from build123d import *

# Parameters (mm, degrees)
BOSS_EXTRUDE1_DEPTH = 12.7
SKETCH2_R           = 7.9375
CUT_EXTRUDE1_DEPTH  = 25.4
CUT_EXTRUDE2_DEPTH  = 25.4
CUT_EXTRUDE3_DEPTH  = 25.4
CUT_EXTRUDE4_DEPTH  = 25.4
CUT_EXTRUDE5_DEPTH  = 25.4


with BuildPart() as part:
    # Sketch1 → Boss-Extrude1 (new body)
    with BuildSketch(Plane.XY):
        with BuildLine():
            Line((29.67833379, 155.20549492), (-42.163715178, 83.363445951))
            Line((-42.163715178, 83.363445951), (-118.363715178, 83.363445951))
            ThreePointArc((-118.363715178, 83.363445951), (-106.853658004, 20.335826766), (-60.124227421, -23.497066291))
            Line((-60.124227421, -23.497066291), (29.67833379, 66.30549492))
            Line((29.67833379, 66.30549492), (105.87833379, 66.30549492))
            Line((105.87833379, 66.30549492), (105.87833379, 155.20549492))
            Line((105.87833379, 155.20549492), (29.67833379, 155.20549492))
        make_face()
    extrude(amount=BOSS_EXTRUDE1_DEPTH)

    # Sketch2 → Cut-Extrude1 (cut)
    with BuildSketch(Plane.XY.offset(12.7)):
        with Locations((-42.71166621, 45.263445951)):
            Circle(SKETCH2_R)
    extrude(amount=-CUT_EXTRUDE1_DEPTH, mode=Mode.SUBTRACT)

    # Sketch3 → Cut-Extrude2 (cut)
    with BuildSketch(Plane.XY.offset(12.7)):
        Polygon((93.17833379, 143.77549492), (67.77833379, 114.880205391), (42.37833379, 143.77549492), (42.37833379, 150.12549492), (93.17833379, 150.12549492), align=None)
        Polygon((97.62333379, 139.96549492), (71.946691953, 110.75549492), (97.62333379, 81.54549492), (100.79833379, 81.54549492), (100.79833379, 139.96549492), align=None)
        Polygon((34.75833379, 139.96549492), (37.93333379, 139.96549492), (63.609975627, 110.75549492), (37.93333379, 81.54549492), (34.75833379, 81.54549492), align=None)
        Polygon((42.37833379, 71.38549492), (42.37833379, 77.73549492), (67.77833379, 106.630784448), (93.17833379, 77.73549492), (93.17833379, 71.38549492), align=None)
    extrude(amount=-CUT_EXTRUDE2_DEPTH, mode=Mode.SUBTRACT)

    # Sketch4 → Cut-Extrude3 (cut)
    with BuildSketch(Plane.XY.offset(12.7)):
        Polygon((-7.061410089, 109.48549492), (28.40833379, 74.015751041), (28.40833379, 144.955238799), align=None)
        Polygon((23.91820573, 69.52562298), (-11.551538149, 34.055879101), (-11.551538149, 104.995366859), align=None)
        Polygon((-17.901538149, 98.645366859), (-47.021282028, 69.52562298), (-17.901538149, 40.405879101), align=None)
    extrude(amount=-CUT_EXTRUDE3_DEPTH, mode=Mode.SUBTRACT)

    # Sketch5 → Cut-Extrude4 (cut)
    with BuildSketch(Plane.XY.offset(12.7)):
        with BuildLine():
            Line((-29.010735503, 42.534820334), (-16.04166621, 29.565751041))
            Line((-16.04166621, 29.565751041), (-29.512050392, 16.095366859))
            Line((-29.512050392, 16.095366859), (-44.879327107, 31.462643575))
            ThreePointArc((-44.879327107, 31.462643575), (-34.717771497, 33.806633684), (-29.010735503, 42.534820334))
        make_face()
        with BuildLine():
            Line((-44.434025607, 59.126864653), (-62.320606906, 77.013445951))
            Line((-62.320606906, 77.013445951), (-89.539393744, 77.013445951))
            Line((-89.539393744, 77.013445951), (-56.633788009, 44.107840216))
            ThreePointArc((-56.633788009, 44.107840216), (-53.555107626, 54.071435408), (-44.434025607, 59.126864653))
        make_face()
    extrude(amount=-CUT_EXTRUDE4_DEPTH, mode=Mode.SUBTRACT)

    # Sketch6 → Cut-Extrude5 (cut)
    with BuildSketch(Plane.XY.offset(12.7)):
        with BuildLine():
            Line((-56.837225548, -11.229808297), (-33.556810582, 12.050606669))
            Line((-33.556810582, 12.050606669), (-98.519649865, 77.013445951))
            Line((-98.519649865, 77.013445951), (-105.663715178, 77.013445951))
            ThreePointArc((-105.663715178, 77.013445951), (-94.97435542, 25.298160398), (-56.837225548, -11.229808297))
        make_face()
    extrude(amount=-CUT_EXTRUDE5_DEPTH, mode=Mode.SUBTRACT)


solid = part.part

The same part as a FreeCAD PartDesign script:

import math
import FreeCAD as App
import Part
import Sketcher
from FreeCAD import Vector
Q = App.Units.Quantity

doc = App.newDocument("Part")
body = doc.addObject("PartDesign::Body", "Body")

# Sketch on XY plane
sketch1 = body.newObject("Sketcher::SketchObject", "Sketch")
sketch1.AttachmentSupport = (doc.getObject("XY_Plane"), [""])
sketch1.MapMode = "FlatFace"
sketch1.addGeometry([
    Part.LineSegment(Vector(30, 155, 0), Vector(-42, 83, 0)),  # 0
    Part.LineSegment(Vector(-42, 83, 0), Vector(-118, 83, 0)),  # 1
    Part.ArcOfCircle(Part.Circle(Vector(-17, 69, 0), Vector(0, 0, 1), 102), math.radians(172), math.radians(245)),  # 2
    Part.LineSegment(Vector(-60, -23, 0), Vector(30, 66, 0)),  # 3
    Part.LineSegment(Vector(30, 66, 0), Vector(106, 66, 0)),  # 4
    Part.LineSegment(Vector(106, 66, 0), Vector(106, 155, 0)),  # 5
    Part.LineSegment(Vector(106, 155, 0), Vector(30, 155, 0)),  # 6
], False)
sketch1.addConstraint([
    Sketcher.Constraint("Coincident", 0, 2, 1, 1),
    Sketcher.Constraint("Coincident", 1, 2, 2, 1),
    Sketcher.Constraint("Coincident", 2, 2, 3, 1),
    Sketcher.Constraint("Coincident", 3, 2, 4, 1),
    Sketcher.Constraint("Coincident", 4, 2, 5, 1),
    Sketcher.Constraint("Coincident", 5, 2, 6, 1),
    Sketcher.Constraint("Coincident", 6, 2, 0, 1),
    Sketcher.Constraint("Horizontal", 1),
    Sketcher.Constraint("Horizontal", 4),
    Sketcher.Constraint("Vertical", 5),
    Sketcher.Constraint("Horizontal", 6),
    Sketcher.Constraint("Parallel", 0, 3),
    Sketcher.Constraint("Vertical", 3, 2, 6, 2),
    Sketcher.Constraint("Equal", 1, 4),
    Sketcher.Constraint("DistanceX", 1, 2, 1, 1, Q("3 in")),
    Sketcher.Constraint("Distance", 0, Q("4 in")),
    Sketcher.Constraint("Distance", 3, Q("5 in")),
    Sketcher.Constraint("DistanceY", 5, 1, 5, 2, Q("3.5 in")),
    Sketcher.Constraint("Angle", 0, Q("-135 deg")),
    Sketcher.Constraint("Radius", 2, Q("102.341669 mm")),
    Sketcher.Constraint("DistanceY", -1, 1, 2, 3, Q("69.311199 mm")),
    Sketcher.Constraint("DistanceX", 2, 3, -1, 1, Q("16.991374 mm")),
])
pad1 = body.newObject("PartDesign::Pad", "Pad")
pad1.Profile = sketch1
pad1.Length = Q("0.5 in")

# Sketch on XY plane
sketch2 = body.newObject("Sketcher::SketchObject", "Sketch001")
sketch2.AttachmentSupport = (doc.getObject("XY_Plane"), [""])
sketch2.MapMode = "FlatFace"
sketch2.AttachmentOffset = App.Placement(Vector(0, 0, 0.5 * 25.4), App.Rotation())
sketch2.addGeometry(Part.Circle(Vector(-43, 45, 0), Vector(0, 0, 1), 8), False)
sketch2.addConstraint([
    Sketcher.Constraint("Diameter", 0, Q("0.625 in")),
    Sketcher.Constraint("DistanceX", 0, 3, -1, 1, Q("42.711666 mm")),
    Sketcher.Constraint("DistanceY", -1, 1, 0, 3, Q("45.263446 mm")),
])
pocket1 = body.newObject("PartDesign::Pocket", "Pocket")
pocket1.Profile = sketch2
pocket1.Length = Q("1 in")

# Sketch on XY plane
sketch3 = body.newObject("Sketcher::SketchObject", "Sketch002")
sketch3.AttachmentSupport = (doc.getObject("XY_Plane"), [""])
sketch3.MapMode = "FlatFace"
sketch3.AttachmentOffset = App.Placement(Vector(0, 0, 0.5 * 25.4), App.Rotation())
sketch3.addGeometry([
    Part.LineSegment(Vector(67.8, 114.9, 0), Vector(93.2, 143.8, 0)),  # 0
    Part.LineSegment(Vector(93.2, 143.8, 0), Vector(93.2, 150.1, 0)),  # 1
    Part.LineSegment(Vector(93.2, 150.1, 0), Vector(42.4, 150.1, 0)),  # 2
    Part.LineSegment(Vector(42.4, 150.1, 0), Vector(42.4, 143.8, 0)),  # 3
    Part.LineSegment(Vector(42.4, 143.8, 0), Vector(67.8, 114.9, 0)),  # 4
    Part.LineSegment(Vector(97.6, 140, 0), Vector(71.9, 110.8, 0)),  # 5
    Part.LineSegment(Vector(71.9, 110.8, 0), Vector(97.6, 81.5, 0)),  # 6
    Part.LineSegment(Vector(97.6, 81.5, 0), Vector(100.8, 81.5, 0)),  # 7
    Part.LineSegment(Vector(100.8, 81.5, 0), Vector(100.8, 140, 0)),  # 8
    Part.LineSegment(Vector(100.8, 140, 0), Vector(97.6, 140, 0)),  # 9
    Part.LineSegment(Vector(37.9, 140, 0), Vector(34.8, 140, 0)),  # 10
    Part.LineSegment(Vector(34.8, 140, 0), Vector(34.8, 81.5, 0)),  # 11
    Part.LineSegment(Vector(34.8, 81.5, 0), Vector(37.9, 81.5, 0)),  # 12
    Part.LineSegment(Vector(37.9, 81.5, 0), Vector(63.6, 110.8, 0)),  # 13
    Part.LineSegment(Vector(63.6, 110.8, 0), Vector(37.9, 140, 0)),  # 14
    Part.LineSegment(Vector(42.4, 77.7, 0), Vector(42.4, 71.4, 0)),  # 15
    Part.LineSegment(Vector(42.4, 71.4, 0), Vector(93.2, 71.4, 0)),  # 16
    Part.LineSegment(Vector(93.2, 71.4, 0), Vector(93.2, 77.7, 0)),  # 17
    Part.LineSegment(Vector(93.2, 77.7, 0), Vector(67.8, 106.6, 0)),  # 18
    Part.LineSegment(Vector(67.8, 106.6, 0), Vector(42.4, 77.7, 0)),  # 19
], False)
sketch3.addConstraint([
    Sketcher.Constraint("Coincident", 0, 2, 1, 1),
    Sketcher.Constraint("Coincident", 1, 2, 2, 1),
    Sketcher.Constraint("Coincident", 2, 2, 3, 1),
    Sketcher.Constraint("Coincident", 3, 2, 4, 1),
    Sketcher.Constraint("Coincident", 4, 2, 0, 1),
    Sketcher.Constraint("Coincident", 5, 2, 6, 1),
    Sketcher.Constraint("Coincident", 6, 2, 7, 1),
    Sketcher.Constraint("Coincident", 7, 2, 8, 1),
    Sketcher.Constraint("Coincident", 8, 2, 9, 1),
    Sketcher.Constraint("Coincident", 9, 2, 5, 1),
    Sketcher.Constraint("Coincident", 10, 2, 11, 1),
    Sketcher.Constraint("Coincident", 11, 2, 12, 1),
    Sketcher.Constraint("Coincident", 12, 2, 13, 1),
    Sketcher.Constraint("Coincident", 13, 2, 14, 1),
    Sketcher.Constraint("Coincident", 14, 2, 10, 1),
    Sketcher.Constraint("Coincident", 15, 2, 16, 1),
    Sketcher.Constraint("Coincident", 16, 2, 17, 1),
    Sketcher.Constraint("Coincident", 17, 2, 18, 1),
    Sketcher.Constraint("Coincident", 18, 2, 19, 1),
    Sketcher.Constraint("Coincident", 19, 2, 15, 1),
    Sketcher.Constraint("Vertical", 1),
    Sketcher.Constraint("Horizontal", 2),
    Sketcher.Constraint("Vertical", 3),
    Sketcher.Constraint("Horizontal", 7),
    Sketcher.Constraint("Vertical", 8),
    Sketcher.Constraint("Horizontal", 9),
    Sketcher.Constraint("Horizontal", 10),
    Sketcher.Constraint("Vertical", 11),
    Sketcher.Constraint("Horizontal", 12),
    Sketcher.Constraint("Vertical", 15),
    Sketcher.Constraint("Horizontal", 16),
    Sketcher.Constraint("Vertical", 17),
    Sketcher.Constraint("Parallel", 0, 5),
    Sketcher.Constraint("Parallel", 4, 6),
    Sketcher.Constraint("Parallel", 5, 13),
    Sketcher.Constraint("Parallel", 6, 14),
    Sketcher.Constraint("Parallel", 14, 18),
    Sketcher.Constraint("Parallel", 13, 19),
    Sketcher.Constraint("Horizontal", 0, 2, 3, 2),
    Sketcher.Constraint("Horizontal", 9, 2, 10, 2),
    Sketcher.Constraint("Horizontal", 7, 2, 11, 2),
    Sketcher.Constraint("Horizontal", 5, 2, 13, 2),
    Sketcher.Constraint("Horizontal", 17, 2, 19, 2),
    Sketcher.Constraint("Vertical", 6, 2, 9, 2),
    Sketcher.Constraint("Vertical", 12, 2, 14, 2),
    Sketcher.Constraint("Vertical", 3, 2, 15, 2),
    Sketcher.Constraint("Vertical", 1, 2, 16, 2),
    Sketcher.Constraint("Equal", 9, 10),
    Sketcher.Constraint("Equal", 3, 15),
    Sketcher.Constraint("DistanceX", 2, 2, 2, 1, Q("2 in")),
    Sketcher.Constraint("DistanceY", 8, 1, 8, 2, Q("2.3 in")),
    Sketcher.Constraint("DistanceY", 1, 1, 1, 2, Q("0.25 in")),
    Sketcher.Constraint("DistanceY", 5, 2, 0, 2, Q("1.3 in")),
    Sketcher.Constraint("DistanceX", 4, 2, 7, 2, Q("1.3 in")),
    Sketcher.Constraint("DistanceX", 10, 2, 3, 2, Q("0.3 in")),
    Sketcher.Constraint("DistanceY", 15, 2, 12, 2, Q("0.4 in")),
    Sketcher.Constraint("DistanceX", 7, 1, 7, 2, Q("0.125 in")),
    Sketcher.Constraint("Distance", 0, Q("38.472039 mm")),
    Sketcher.Constraint("DistanceX", -1, 1, 5, 2, Q("71.946692 mm")),
    Sketcher.Constraint("DistanceY", -1, 1, 0, 2, Q("143.775495 mm")),
])
pocket2 = body.newObject("PartDesign::Pocket", "Pocket001")
pocket2.Profile = sketch3
pocket2.Length = Q("1 in")

# Sketch on XY plane
sketch4 = body.newObject("Sketcher::SketchObject", "Sketch003")
sketch4.AttachmentSupport = (doc.getObject("XY_Plane"), [""])
sketch4.MapMode = "FlatFace"
sketch4.AttachmentOffset = App.Placement(Vector(0, 0, 0.5 * 25.4), App.Rotation())
sketch4.addGeometry([
    Part.LineSegment(Vector(-7, 109, 0), Vector(28, 74, 0)),  # 0
    Part.LineSegment(Vector(28, 74, 0), Vector(28, 145, 0)),  # 1
    Part.LineSegment(Vector(28, 145, 0), Vector(-7, 109, 0)),  # 2
    Part.LineSegment(Vector(-12, 34, 0), Vector(24, 70, 0)),  # 3
    Part.LineSegment(Vector(24, 70, 0), Vector(-12, 105, 0)),  # 4
    Part.LineSegment(Vector(-12, 105, 0), Vector(-12, 34, 0)),  # 5
    Part.LineSegment(Vector(-18, 99, 0), Vector(-47, 70, 0)),  # 6
    Part.LineSegment(Vector(-47, 70, 0), Vector(-18, 40, 0)),  # 7
    Part.LineSegment(Vector(-18, 40, 0), Vector(-18, 99, 0)),  # 8
], False)
sketch4.addConstraint([
    Sketcher.Constraint("Coincident", 0, 2, 1, 1),
    Sketcher.Constraint("Coincident", 1, 2, 2, 1),
    Sketcher.Constraint("Coincident", 2, 2, 0, 1),
    Sketcher.Constraint("Coincident", 3, 2, 4, 1),
    Sketcher.Constraint("Coincident", 4, 2, 5, 1),
    Sketcher.Constraint("Coincident", 5, 2, 3, 1),
    Sketcher.Constraint("Coincident", 6, 2, 7, 1),
    Sketcher.Constraint("Coincident", 7, 2, 8, 1),
    Sketcher.Constraint("Coincident", 8, 2, 6, 1),
    Sketcher.Constraint("Vertical", 1),
    Sketcher.Constraint("Vertical", 5),
    Sketcher.Constraint("Vertical", 8),
    Sketcher.Constraint("Perpendicular", 0, 2),
    Sketcher.Constraint("Parallel", 2, 3),
    Sketcher.Constraint("Perpendicular", 3, 4),
    Sketcher.Constraint("Perpendicular", 4, 6),
    Sketcher.Constraint("Perpendicular", 6, 7),
    Sketcher.Constraint("Horizontal", 3, 2, 6, 2),
    Sketcher.Constraint("Equal", 1, 5),
    Sketcher.Constraint("Equal", 0, 2),
    Sketcher.Constraint("DistanceX", 7, 2, 5, 2, Q("0.25 in")),
    Sketcher.Constraint("DistanceY", 5, 2, 7, 2, Q("0.25 in")),
    Sketcher.Constraint("DistanceY", 1, 1, 1, 2, Q("70.939488 mm")),
    Sketcher.Constraint("DistanceY", -1, 1, 0, 2, Q("74.015751 mm")),
    Sketcher.Constraint("DistanceX", 2, 2, -1, 1, Q("7.06141 mm")),
    Sketcher.Constraint("DistanceX", 4, 2, -1, 1, Q("11.551538 mm")),
    Sketcher.Constraint("DistanceY", -1, 1, 5, 2, Q("34.055879 mm")),
])
pocket3 = body.newObject("PartDesign::Pocket", "Pocket002")
pocket3.Profile = sketch4
pocket3.Length = Q("1 in")

# Sketch on XY plane
sketch5 = body.newObject("Sketcher::SketchObject", "Sketch004")
sketch5.AttachmentSupport = (doc.getObject("XY_Plane"), [""])
sketch5.MapMode = "FlatFace"
sketch5.AttachmentOffset = App.Placement(Vector(0, 0, 0.5 * 25.4), App.Rotation())
sketch5.addGeometry([
    Part.LineSegment(Vector(-16, 30, 0), Vector(-29, 43, 0)),  # 0
    Part.ArcOfCircle(Part.Circle(Vector(-43, 45, 0), Vector(0, 0, 1), 14), math.radians(-99), math.radians(-11)),  # 1
    Part.LineSegment(Vector(-45, 31, 0), Vector(-30, 16, 0)),  # 2
    Part.LineSegment(Vector(-30, 16, 0), Vector(-16, 30, 0)),  # 3
    Part.LineSegment(Vector(-44, 59, 0), Vector(-62, 77, 0)),  # 4
    Part.LineSegment(Vector(-62, 77, 0), Vector(-90, 77, 0)),  # 5
    Part.LineSegment(Vector(-90, 77, 0), Vector(-57, 44, 0)),  # 6
    Part.ArcOfCircle(Part.Circle(Vector(-43, 45, 0), Vector(0, 0, 1), 14), math.radians(97), math.radians(185)),  # 7
], False)
sketch5.addConstraint([
    Sketcher.Constraint("Coincident", 0, 2, 1, 2),
    Sketcher.Constraint("Coincident", 1, 1, 2, 1),
    Sketcher.Constraint("Coincident", 2, 2, 3, 1),
    Sketcher.Constraint("Coincident", 3, 2, 0, 1),
    Sketcher.Constraint("Coincident", 4, 2, 5, 1),
    Sketcher.Constraint("Coincident", 5, 2, 6, 1),
    Sketcher.Constraint("Coincident", 6, 2, 7, 2),
    Sketcher.Constraint("Coincident", 7, 1, 4, 1),
    Sketcher.Constraint("Horizontal", 5),
    Sketcher.Constraint("Coincident", 7, 3, 1, 3),
    Sketcher.Constraint("Equal", 1, 7),
    Sketcher.Constraint("Parallel", 0, 2),
    Sketcher.Constraint("Perpendicular", 2, 3),
    Sketcher.Constraint("Perpendicular", 3, 4),
    Sketcher.Constraint("Parallel", 4, 6),
    Sketcher.Constraint("Radius", 1, Q("0.55 in")),
    Sketcher.Constraint("Angle", 0, Q("135 deg")),
    Sketcher.Constraint("Distance", 3, Q("0.75 in")),
    Sketcher.Constraint("DistanceX", 1, 3, 3, 2, Q("1.05 in")),
    Sketcher.Constraint("DistanceY", 7, 3, 4, 2, Q("1.25 in")),
    Sketcher.Constraint("DistanceY", 6, 2, 7, 1, Q("0.5913002 in")),
    Sketcher.Constraint("Distance", 2, Q("21.732611 mm")),
    Sketcher.Constraint("DistanceX", 5, 2, 5, 1, Q("27.218787 mm")),
    Sketcher.Constraint("DistanceY", -1, 1, 0, 2, Q("42.53482 mm")),
    Sketcher.Constraint("DistanceX", 2, 2, -1, 1, Q("29.51205 mm")),
])
pocket4 = body.newObject("PartDesign::Pocket", "Pocket003")
pocket4.Profile = sketch5
pocket4.Length = Q("1 in")

# Sketch on XY plane
sketch6 = body.newObject("Sketcher::SketchObject", "Sketch005")
sketch6.AttachmentSupport = (doc.getObject("XY_Plane"), [""])
sketch6.MapMode = "FlatFace"
sketch6.AttachmentOffset = App.Placement(Vector(0, 0, 0.5 * 25.4), App.Rotation())
sketch6.addGeometry([
    Part.LineSegment(Vector(-57, -11, 0), Vector(-34, 12, 0)),
    Part.LineSegment(Vector(-34, 12, 0), Vector(-99, 77, 0)),
    Part.LineSegment(Vector(-99, 77, 0), Vector(-106, 77, 0)),
    Part.ArcOfCircle(Part.Circle(Vector(-17, 68, 0), Vector(0, 0, 1), 89), math.radians(174), math.radians(244)),
], False)
sketch6.addConstraint([
    Sketcher.Constraint("Coincident", 0, 2, 1, 1),
    Sketcher.Constraint("Coincident", 1, 2, 2, 1),
    Sketcher.Constraint("Coincident", 2, 2, 3, 1),
    Sketcher.Constraint("Coincident", 3, 2, 0, 1),
    Sketcher.Constraint("Horizontal", 2),
    Sketcher.Constraint("Perpendicular", 0, 1),
    Sketcher.Constraint("Radius", 3, Q("3.5 in")),
    Sketcher.Constraint("Angle", 0, Q("45 deg")),
    Sketcher.Constraint("Distance", 0, Q("1.2961999 in")),
    Sketcher.Constraint("DistanceY", 3, 2, 3, 3, Q("79.568499 mm")),
    Sketcher.Constraint("Distance", 1, Q("91.871328 mm")),
    Sketcher.Constraint("DistanceY", -1, 1, 3, 3, Q("68.338691 mm")),
    Sketcher.Constraint("DistanceX", 0, 2, -1, 1, Q("33.556811 mm")),
])
pocket5 = body.newObject("PartDesign::Pocket", "Pocket004")
pocket5.Profile = sketch6
pocket5.Length = Q("1 in")

doc.recompute()
